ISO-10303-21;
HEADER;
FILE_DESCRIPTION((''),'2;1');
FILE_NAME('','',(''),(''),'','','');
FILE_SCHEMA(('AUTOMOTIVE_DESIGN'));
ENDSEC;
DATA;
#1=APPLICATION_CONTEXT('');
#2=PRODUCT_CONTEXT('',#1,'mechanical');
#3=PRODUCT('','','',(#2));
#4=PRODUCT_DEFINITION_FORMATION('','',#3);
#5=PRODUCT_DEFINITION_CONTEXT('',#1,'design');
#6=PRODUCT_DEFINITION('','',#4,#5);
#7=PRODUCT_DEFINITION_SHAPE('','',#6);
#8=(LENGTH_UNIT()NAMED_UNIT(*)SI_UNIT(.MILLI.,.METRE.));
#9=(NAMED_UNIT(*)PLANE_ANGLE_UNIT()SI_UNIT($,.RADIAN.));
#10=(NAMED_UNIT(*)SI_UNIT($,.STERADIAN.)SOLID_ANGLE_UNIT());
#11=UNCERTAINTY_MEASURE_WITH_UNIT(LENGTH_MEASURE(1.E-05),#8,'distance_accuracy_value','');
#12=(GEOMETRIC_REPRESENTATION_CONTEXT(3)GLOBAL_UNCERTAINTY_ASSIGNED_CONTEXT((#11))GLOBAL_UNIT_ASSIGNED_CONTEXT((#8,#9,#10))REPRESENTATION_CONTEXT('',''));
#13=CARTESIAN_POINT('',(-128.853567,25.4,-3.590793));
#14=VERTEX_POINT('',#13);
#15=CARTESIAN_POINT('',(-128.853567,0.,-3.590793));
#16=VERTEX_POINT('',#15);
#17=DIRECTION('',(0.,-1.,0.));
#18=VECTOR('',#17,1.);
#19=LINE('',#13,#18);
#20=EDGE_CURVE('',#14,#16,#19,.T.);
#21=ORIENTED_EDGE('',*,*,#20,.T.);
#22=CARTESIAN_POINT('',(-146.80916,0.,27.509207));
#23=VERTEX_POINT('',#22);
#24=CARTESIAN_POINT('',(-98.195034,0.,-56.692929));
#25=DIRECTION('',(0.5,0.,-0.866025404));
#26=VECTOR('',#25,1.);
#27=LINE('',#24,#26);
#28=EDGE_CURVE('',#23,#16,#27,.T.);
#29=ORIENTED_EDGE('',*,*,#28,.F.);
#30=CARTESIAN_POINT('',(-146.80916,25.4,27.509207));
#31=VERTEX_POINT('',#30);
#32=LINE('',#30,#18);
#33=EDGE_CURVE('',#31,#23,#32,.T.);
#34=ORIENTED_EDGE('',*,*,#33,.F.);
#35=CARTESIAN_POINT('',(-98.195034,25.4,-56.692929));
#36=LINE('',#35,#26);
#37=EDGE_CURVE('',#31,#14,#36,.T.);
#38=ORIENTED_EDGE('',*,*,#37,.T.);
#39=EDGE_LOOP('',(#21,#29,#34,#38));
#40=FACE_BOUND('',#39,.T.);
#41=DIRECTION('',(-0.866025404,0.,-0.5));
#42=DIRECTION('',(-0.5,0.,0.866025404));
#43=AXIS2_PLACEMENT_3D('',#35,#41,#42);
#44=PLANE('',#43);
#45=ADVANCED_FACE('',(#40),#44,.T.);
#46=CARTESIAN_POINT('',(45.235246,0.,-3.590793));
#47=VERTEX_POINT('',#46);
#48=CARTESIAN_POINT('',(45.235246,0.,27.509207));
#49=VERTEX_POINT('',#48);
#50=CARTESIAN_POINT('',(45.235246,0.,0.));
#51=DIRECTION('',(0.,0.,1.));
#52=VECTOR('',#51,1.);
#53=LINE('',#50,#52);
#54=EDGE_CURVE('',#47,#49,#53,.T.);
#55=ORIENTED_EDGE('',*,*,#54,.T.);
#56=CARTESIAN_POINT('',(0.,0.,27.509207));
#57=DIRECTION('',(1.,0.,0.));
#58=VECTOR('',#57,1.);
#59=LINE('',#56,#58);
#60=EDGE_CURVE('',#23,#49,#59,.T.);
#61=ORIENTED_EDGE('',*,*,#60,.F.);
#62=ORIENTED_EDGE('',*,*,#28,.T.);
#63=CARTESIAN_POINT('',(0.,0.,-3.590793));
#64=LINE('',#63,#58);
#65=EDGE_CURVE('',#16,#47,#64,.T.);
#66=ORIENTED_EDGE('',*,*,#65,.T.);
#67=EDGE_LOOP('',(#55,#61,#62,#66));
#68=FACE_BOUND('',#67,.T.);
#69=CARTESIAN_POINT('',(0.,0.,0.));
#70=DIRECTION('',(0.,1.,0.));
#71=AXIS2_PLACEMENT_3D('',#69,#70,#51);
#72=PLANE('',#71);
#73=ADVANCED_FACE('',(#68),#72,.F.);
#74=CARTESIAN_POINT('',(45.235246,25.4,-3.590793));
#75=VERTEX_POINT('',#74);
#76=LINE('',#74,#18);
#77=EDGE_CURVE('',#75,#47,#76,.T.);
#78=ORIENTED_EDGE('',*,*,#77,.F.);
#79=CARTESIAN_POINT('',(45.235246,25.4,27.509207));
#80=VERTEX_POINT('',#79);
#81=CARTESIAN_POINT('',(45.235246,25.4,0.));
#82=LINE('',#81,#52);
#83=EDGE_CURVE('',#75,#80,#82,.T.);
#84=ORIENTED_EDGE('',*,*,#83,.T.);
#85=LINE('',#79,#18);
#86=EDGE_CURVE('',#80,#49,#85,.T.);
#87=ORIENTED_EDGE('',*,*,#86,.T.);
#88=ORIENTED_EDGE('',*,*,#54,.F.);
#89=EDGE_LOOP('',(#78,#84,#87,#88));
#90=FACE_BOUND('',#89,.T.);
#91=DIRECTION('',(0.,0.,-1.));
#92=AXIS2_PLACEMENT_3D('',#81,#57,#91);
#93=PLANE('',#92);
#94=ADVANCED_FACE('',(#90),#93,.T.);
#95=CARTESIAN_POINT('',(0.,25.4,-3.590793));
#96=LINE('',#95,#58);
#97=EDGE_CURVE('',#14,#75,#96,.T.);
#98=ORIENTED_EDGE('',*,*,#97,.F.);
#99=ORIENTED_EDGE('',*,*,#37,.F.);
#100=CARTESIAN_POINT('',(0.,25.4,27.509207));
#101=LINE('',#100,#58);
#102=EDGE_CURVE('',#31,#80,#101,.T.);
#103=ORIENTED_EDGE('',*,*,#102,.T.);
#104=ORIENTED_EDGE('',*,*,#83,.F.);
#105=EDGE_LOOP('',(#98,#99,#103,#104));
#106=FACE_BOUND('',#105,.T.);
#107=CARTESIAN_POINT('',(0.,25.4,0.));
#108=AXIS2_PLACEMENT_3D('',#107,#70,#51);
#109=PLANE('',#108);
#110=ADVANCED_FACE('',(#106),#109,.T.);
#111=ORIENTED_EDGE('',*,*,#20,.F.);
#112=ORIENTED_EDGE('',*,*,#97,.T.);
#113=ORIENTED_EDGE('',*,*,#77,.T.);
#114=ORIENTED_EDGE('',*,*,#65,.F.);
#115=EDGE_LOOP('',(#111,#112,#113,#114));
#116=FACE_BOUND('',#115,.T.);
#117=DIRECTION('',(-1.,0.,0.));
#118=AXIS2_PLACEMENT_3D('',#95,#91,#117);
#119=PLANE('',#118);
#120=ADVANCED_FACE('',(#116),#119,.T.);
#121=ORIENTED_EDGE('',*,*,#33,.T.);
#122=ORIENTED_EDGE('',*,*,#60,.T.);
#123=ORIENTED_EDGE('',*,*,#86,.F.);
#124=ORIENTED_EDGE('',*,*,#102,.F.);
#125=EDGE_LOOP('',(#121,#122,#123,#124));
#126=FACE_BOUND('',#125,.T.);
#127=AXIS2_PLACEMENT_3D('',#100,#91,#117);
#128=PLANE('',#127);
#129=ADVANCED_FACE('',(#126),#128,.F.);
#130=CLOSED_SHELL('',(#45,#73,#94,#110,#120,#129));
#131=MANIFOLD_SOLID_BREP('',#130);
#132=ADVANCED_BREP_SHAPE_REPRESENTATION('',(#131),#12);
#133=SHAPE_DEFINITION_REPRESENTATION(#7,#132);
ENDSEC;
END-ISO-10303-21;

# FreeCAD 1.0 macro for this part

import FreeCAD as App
import Part
import Sketcher

V = App.Vector
Q = App.Units.Quantity


def add_polygon(sketch, points):
    """Adds a closed chain of lines whose ends are joined by coincident constraints."""
    first, n = sketch.GeometryCount, len(points)
    for a, b in zip(points, points[1:] + points[:1]):
        sketch.addGeometry(Part.LineSegment(App.Vector(*a, 0), App.Vector(*b, 0)), False)
    for i in range(n):
        sketch.addConstraint(Sketcher.Constraint("Coincident", first + i, 2, first + (i + 1) % n, 1))

doc = App.newDocument("Part")
body = doc.addObject("PartDesign::Body", "Body")

# Sketch on XZ plane
sketch1 = body.newObject("Sketcher::SketchObject", "Sketch")
sketch1.AttachmentSupport = (doc.getObject("XZ_Plane"), [""])
sketch1.MapMode = "FlatFace"
add_polygon(sketch1, [(-128.853567, -3.590793), (-146.80916, 27.509207), (45.235246, 27.509207), (45.235246, -3.590793)])  # lines 0-3
sketch1.addConstraint([
    Sketcher.Constraint("Horizontal", 1),
    Sketcher.Constraint("Vertical", 2),
    Sketcher.Constraint("Horizontal", 3),
    Sketcher.Constraint("Angle", 0, Q("120 deg")),
    Sketcher.Constraint("DistanceY", 2, 2, 2, 1, Q("31.1 mm")),
    Sketcher.Constraint("DistanceX", 1, 1, 1, 2, Q("192.044407 mm")),
    Sketcher.Constraint("DistanceX", 0, 2, -1, 1, Q("146.80916 mm")),
    Sketcher.Constraint("DistanceY", -1, 1, 0, 2, Q("27.509207 mm")),
])
pad1 = body.newObject("PartDesign::Pad", "Pad")
pad1.Profile = sketch1
pad1.Length = 25.4
pad1.Reversed = True

doc.recompute()
